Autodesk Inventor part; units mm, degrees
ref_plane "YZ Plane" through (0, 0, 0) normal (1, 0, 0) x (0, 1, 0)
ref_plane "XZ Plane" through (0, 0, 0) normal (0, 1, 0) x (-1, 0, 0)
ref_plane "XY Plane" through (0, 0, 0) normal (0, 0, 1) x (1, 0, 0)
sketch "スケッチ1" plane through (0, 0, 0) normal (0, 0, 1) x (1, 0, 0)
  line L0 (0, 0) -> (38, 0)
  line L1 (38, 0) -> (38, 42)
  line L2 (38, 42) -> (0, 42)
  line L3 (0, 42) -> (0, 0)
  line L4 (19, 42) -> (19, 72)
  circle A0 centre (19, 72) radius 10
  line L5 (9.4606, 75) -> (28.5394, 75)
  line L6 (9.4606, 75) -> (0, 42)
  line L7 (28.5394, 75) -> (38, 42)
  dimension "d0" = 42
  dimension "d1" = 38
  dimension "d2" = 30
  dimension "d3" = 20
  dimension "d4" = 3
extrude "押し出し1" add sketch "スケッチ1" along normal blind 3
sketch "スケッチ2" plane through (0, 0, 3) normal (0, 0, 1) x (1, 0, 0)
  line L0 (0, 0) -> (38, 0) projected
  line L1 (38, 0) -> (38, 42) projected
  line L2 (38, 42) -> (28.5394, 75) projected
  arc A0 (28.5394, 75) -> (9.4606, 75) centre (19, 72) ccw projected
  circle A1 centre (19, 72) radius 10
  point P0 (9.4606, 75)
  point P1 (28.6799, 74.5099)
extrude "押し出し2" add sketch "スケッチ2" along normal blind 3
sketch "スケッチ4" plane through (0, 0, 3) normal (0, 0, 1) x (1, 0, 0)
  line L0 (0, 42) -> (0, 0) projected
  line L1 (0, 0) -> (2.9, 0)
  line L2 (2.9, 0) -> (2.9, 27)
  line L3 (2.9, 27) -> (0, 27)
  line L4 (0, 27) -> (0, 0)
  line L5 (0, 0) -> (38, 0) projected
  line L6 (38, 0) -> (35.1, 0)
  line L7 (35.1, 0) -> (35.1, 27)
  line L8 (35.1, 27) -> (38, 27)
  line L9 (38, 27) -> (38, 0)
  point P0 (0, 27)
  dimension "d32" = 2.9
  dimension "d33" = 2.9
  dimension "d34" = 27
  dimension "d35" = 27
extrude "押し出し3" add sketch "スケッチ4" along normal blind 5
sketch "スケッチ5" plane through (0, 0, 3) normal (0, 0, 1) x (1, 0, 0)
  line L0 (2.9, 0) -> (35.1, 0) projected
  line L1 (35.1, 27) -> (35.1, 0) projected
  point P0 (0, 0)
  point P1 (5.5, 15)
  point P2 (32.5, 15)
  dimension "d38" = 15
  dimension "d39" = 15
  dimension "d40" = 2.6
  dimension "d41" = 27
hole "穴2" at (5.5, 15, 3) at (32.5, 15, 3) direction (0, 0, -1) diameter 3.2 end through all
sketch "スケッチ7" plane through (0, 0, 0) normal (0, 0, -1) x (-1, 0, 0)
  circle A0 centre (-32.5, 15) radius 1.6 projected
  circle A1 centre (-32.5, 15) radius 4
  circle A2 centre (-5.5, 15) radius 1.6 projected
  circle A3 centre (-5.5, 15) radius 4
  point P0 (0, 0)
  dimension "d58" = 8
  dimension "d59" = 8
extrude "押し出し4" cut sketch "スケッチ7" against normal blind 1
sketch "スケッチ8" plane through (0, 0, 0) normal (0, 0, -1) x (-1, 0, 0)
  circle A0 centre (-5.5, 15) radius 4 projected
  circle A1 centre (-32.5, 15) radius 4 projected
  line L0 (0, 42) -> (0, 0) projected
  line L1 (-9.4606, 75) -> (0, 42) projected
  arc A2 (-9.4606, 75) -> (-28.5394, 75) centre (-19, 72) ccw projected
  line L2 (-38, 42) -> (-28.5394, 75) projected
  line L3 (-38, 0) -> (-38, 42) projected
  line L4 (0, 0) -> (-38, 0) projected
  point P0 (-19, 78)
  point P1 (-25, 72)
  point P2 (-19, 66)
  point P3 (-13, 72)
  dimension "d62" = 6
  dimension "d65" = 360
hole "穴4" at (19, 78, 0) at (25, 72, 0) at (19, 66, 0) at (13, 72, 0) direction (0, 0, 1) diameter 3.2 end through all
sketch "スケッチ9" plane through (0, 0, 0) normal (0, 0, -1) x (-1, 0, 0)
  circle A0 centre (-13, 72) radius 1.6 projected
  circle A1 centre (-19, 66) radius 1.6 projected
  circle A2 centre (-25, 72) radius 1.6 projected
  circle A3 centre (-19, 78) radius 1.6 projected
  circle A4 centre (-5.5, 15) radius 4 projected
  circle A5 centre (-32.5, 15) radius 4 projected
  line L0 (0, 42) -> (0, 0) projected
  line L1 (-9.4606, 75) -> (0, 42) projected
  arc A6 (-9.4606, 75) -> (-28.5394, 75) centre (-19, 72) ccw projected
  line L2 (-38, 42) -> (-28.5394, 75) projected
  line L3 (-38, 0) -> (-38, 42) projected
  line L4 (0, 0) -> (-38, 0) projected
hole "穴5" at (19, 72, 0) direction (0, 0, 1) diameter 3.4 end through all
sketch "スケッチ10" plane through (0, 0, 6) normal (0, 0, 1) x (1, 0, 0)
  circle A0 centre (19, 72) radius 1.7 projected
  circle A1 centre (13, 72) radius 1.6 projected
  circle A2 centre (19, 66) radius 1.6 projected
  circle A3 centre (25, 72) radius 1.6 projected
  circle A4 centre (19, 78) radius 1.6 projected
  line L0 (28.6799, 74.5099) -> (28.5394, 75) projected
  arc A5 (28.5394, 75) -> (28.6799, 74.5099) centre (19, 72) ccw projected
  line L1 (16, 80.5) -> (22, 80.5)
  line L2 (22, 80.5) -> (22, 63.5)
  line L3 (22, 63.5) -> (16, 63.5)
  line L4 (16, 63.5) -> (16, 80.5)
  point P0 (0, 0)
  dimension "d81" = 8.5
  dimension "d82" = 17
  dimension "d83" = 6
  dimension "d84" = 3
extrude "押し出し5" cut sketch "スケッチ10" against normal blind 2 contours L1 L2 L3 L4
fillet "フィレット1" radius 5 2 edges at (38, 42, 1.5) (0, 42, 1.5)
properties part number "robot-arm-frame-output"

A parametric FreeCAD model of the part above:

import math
import FreeCAD as App
import Part
import Sketcher
Q = App.Units.Quantity


def edges_at(feature, points):
    """Names of the edges that pass closest to the given points."""
    edges = feature.Shape.Edges
    near = lambda p: min(range(len(edges)), key=lambda i: edges[i].distToShape(Part.Vertex(*p))[0])
    return sorted({f"Edge{near(p) + 1}" for p in points})


def add_polygon(sketch, points):
    """Adds a closed chain of lines whose ends are joined by coincident constraints."""
    first, n = sketch.GeometryCount, len(points)
    for a, b in zip(points, points[1:] + points[:1]):
        sketch.addGeometry(Part.LineSegment(App.Vector(*a, 0), App.Vector(*b, 0)), False)
    for i in range(n):
        sketch.addConstraint(Sketcher.Constraint("Coincident", first + i, 2, first + (i + 1) % n, 1))

doc = App.newDocument("Part")
body = doc.addObject("PartDesign::Body", "Body")

# Sketch on XY plane
sketch1 = body.newObject("Sketcher::SketchObject", "Sketch")
sketch1.AttachmentSupport = (doc.getObject("XY_Plane"), [""])
sketch1.MapMode = "FlatFace"
sketch1.addGeometry([
    Part.LineSegment(App.Vector(0, 42, 0), App.Vector(0, 0, 0)),  # 0
    Part.LineSegment(App.Vector(0, 0, 0), App.Vector(38, 0, 0)),  # 1
    Part.LineSegment(App.Vector(38, 0, 0), App.Vector(38, 42, 0)),  # 2
    Part.LineSegment(App.Vector(38, 42, 0), App.Vector(28.5394, 75, 0)),  # 3
    Part.ArcOfCircle(Part.Circle(App.Vector(19, 72, 0), App.Vector(0, 0, 1), 10), math.radians(17.457589), math.radians(162.542411)),  # 4
    Part.LineSegment(App.Vector(9.4606, 75, 0), App.Vector(0, 42, 0)),  # 5
], False)
sketch1.addConstraint([
    Sketcher.Constraint("Coincident", 0, 2, 1, 1),
    Sketcher.Constraint("Coincident", 1, 2, 2, 1),
    Sketcher.Constraint("Coincident", 2, 2, 3, 1),
    Sketcher.Constraint("Coincident", 3, 2, 4, 1),
    Sketcher.Constraint("Coincident", 4, 2, 5, 1),
    Sketcher.Constraint("Coincident", 5, 2, 0, 1),
    Sketcher.Constraint("Vertical", 0),
    Sketcher.Constraint("Horizontal", 1),
    Sketcher.Constraint("Vertical", 2),
    Sketcher.Constraint("Coincident", 0, 2, -1, 1),
    Sketcher.Constraint("Horizontal", 3, 2, 4, 2),
    Sketcher.Constraint("Horizontal", 2, 2, 5, 2),
    Sketcher.Constraint("Equal", 3, 5),
    Sketcher.Constraint("Radius", 4, Q("10 mm")),
    Sketcher.Constraint("DistanceX", 1, 1, 1, 2, Q("38 mm")),
    Sketcher.Constraint("DistanceY", 0, 2, 0, 1, Q("42 mm")),
    Sketcher.Constraint("DistanceY", 2, 2, 4, 3, Q("30 mm")),
    Sketcher.Constraint("DistanceY", 4, 3, 3, 2, Q("3 mm")),
])
pad1 = body.newObject("PartDesign::Pad", "Pad")
pad1.Profile = sketch1
pad1.Length = 3

# Sketch on XY plane
sketch2 = body.newObject("Sketcher::SketchObject", "Sketch001")
sketch2.AttachmentSupport = (doc.getObject("XY_Plane"), [""])
sketch2.MapMode = "FlatFace"
sketch2.AttachmentOffset = App.Placement(App.Vector(0, 0, 3), App.Rotation())
sketch2.addGeometry(Part.Circle(App.Vector(19, 72, 0), App.Vector(0, 0, 1), 10.000008), False)
sketch2.addConstraint([
    Sketcher.Constraint("Diameter", 0, Q("20 mm")),
    Sketcher.Constraint("DistanceX", -1, 1, 0, 3, Q("19 mm")),
    Sketcher.Constraint("DistanceY", -1, 1, 0, 3, Q("72 mm")),
])
pad2 = body.newObject("PartDesign::Pad", "Pad001")
pad2.Profile = sketch2
pad2.Length = 3

# Sketch on XY plane
sketch3 = body.newObject("Sketcher::SketchObject", "Sketch002")
sketch3.AttachmentSupport = (doc.getObject("XY_Plane"), [""])
sketch3.MapMode = "FlatFace"
sketch3.AttachmentOffset = App.Placement(App.Vector(0, 0, 3), App.Rotation())
add_polygon(sketch3, [(2.9, 27), (0, 27), (0, 0), (2.9, 0)])  # lines 0-3
add_polygon(sketch3, [(35.1, 27), (35.1, 0), (38, 0), (38, 27)])  # lines 4-7
sketch3.addConstraint([
    Sketcher.Constraint("Horizontal", 0),
    Sketcher.Constraint("Vertical", 1),
    Sketcher.Constraint("Horizontal", 2),
    Sketcher.Constraint("Vertical", 3),
    Sketcher.Constraint("Vertical", 4),
    Sketcher.Constraint("Horizontal", 5),
    Sketcher.Constraint("Vertical", 6),
    Sketcher.Constraint("Horizontal", 7),
    Sketcher.Constraint("Coincident", 1, 2, -1, 1),
    Sketcher.Constraint("PointOnObject", 4, 2, -1),
    Sketcher.Constraint("Horizontal", 3, 2, 6, 2),
    Sketcher.Constraint("Equal", 2, 5),
    Sketcher.Constraint("DistanceY", 1, 2, 1, 1, Q("27 mm")),
    Sketcher.Constraint("DistanceX", 0, 2, 0, 1, Q("2.9 mm")),
    Sketcher.Constraint("DistanceX", -1, 1, 5, 2, Q("38 mm")),
])
pad3 = body.newObject("PartDesign::Pad", "Pad002")
pad3.Profile = sketch3
pad3.Length = 5

# Sketch on XY plane
sketch4 = body.newObject("Sketcher::SketchObject", "Sketch003")
sketch4.AttachmentSupport = (doc.getObject("XY_Plane"), [""])
sketch4.MapMode = "FlatFace"
sketch4.AttachmentOffset = App.Placement(App.Vector(0, 0, 3), App.Rotation())
sketch4.addGeometry([
    Part.Circle(App.Vector(5.5, 15, 0), App.Vector(0, 0, 1), 1.6),
    Part.Circle(App.Vector(32.5, 15, 0), App.Vector(0, 0, 1), 1.6),
], False)
sketch4.addConstraint([
    Sketcher.Constraint("Equal", 0, 1),
    Sketcher.Constraint("Horizontal", 0, 3, 1, 3),
    Sketcher.Constraint("Diameter", 0, Q("3.2 mm")),
    Sketcher.Constraint("DistanceY", -1, 1, 0, 3, Q("15 mm")),
    Sketcher.Constraint("DistanceX", 0, 3, 1, 3, Q("27 mm")),
    Sketcher.Constraint("DistanceX", -1, 1, 0, 3, Q("5.5 mm")),
])
doc.recompute()
hole = body.newObject("PartDesign::Hole", "Hole")
hole.Profile = sketch4
hole.ThreadType = "None"
hole.Diameter = 3.2
hole.DepthType = "ThroughAll"

# Sketch on XY plane
sketch5 = body.newObject("Sketcher::SketchObject", "Sketch004")
sketch5.AttachmentSupport = (doc.getObject("XY_Plane"), [""])
sketch5.MapMode = "FlatFace"
sketch5.addGeometry([
    Part.Circle(App.Vector(32.5, 15, 0), App.Vector(0, 0, 1), 4),
    Part.Circle(App.Vector(32.5, 15, 0), App.Vector(0, 0, 1), 1.6),
    Part.Circle(App.Vector(5.5, 15, 0), App.Vector(0, 0, 1), 4),
    Part.Circle(App.Vector(5.5, 15, 0), App.Vector(0, 0, 1), 1.6),
], False)
sketch5.addConstraint([
    Sketcher.Constraint("Coincident", 1, 3, 0, 3),
    Sketcher.Constraint("Coincident", 3, 3, 2, 3),
    Sketcher.Constraint("Equal", 0, 2),
    Sketcher.Constraint("Equal", 1, 3),
    Sketcher.Constraint("Horizontal", 1, 3, 2, 3),
    Sketcher.Constraint("Diameter", 0, Q("8 mm")),
    Sketcher.Constraint("Diameter", 1, Q("3.2 mm")),
    Sketcher.Constraint("DistanceY", -1, 1, 0, 3, Q("15 mm")),
    Sketcher.Constraint("DistanceX", 2, 3, 0, 3, Q("27 mm")),
    Sketcher.Constraint("DistanceX", -1, 1, 0, 3, Q("32.5 mm")),
])
pocket1 = body.newObject("PartDesign::Pocket", "Pocket")
pocket1.Profile = sketch5
pocket1.Length = 1
pocket1.Reversed = True

# Sketch on XY plane
sketch6 = body.newObject("Sketcher::SketchObject", "Sketch005")
sketch6.AttachmentSupport = (doc.getObject("XY_Plane"), [""])
sketch6.MapMode = "FlatFace"
sketch6.addGeometry([
    Part.Circle(App.Vector(19, 78, 0), App.Vector(0, 0, 1), 1.6),
    Part.Circle(App.Vector(25, 72, 0), App.Vector(0, 0, 1), 1.6),
    Part.Circle(App.Vector(19, 66, 0), App.Vector(0, 0, 1), 1.6),
    Part.Circle(App.Vector(13, 72, 0), App.Vector(0, 0, 1), 1.6),
], False)
sketch6.addConstraint([
    Sketcher.Constraint("Equal", 0, 1),
    Sketcher.Constraint("Equal", 1, 2),
    Sketcher.Constraint("Equal", 2, 3),
    Sketcher.Constraint("Horizontal", 1, 3, 3, 3),
    Sketcher.Constraint("Vertical", 0, 3, 2, 3),
    Sketcher.Constraint("Diameter", 0, Q("3.2 mm")),
    Sketcher.Constraint("DistanceX", -1, 1, 0, 3, Q("19 mm")),
    Sketcher.Constraint("DistanceY", -1, 1, 0, 3, Q("78 mm")),
    Sketcher.Constraint("DistanceX", -1, 1, 1, 3, Q("25 mm")),
    Sketcher.Constraint("DistanceY", -1, 1, 1, 3, Q("72 mm")),
    Sketcher.Constraint("DistanceY", -1, 1, 2, 3, Q("66 mm")),
    Sketcher.Constraint("DistanceX", -1, 1, 3, 3, Q("13 mm")),
])
doc.recompute()
hole2 = body.newObject("PartDesign::Hole", "Hole001")
hole2.Profile = sketch6
hole2.ThreadType = "None"
hole2.Diameter = 3.2
hole2.DepthType = "ThroughAll"
hole2.Reversed = True

# Sketch on XY plane
sketch7 = body.newObject("Sketcher::SketchObject", "Sketch006")
sketch7.AttachmentSupport = (doc.getObject("XY_Plane"), [""])
sketch7.MapMode = "FlatFace"
sketch7.addGeometry(Part.Circle(App.Vector(19, 72, 0), App.Vector(0, 0, 1), 1.7), False)
sketch7.addConstraint([
    Sketcher.Constraint("Diameter", 0, Q("3.4 mm")),
    Sketcher.Constraint("DistanceX", -1, 1, 0, 3, Q("19 mm")),
    Sketcher.Constraint("DistanceY", -1, 1, 0, 3, Q("72 mm")),
])
doc.recompute()
hole3 = body.newObject("PartDesign::Hole", "Hole002")
hole3.Profile = sketch7
hole3.ThreadType = "None"
hole3.Diameter = 3.4
hole3.DepthType = "ThroughAll"
hole3.Reversed = True

# Sketch on XY plane
sketch8 = body.newObject("Sketcher::SketchObject", "Sketch007")
sketch8.AttachmentSupport = (doc.getObject("XY_Plane"), [""])
sketch8.MapMode = "FlatFace"
sketch8.AttachmentOffset = App.Placement(App.Vector(0, 0, 6), App.Rotation())
add_polygon(sketch8, [(22, 80.5), (16, 80.5), (16, 63.5), (22, 63.5)])  # lines 0-3
sketch8.addGeometry(Part.Circle(App.Vector(19, 66, 0), App.Vector(0, 0, 1), 1.6), False)  # 4
sketch8.addGeometry(Part.Circle(App.Vector(19, 72, 0), App.Vector(0, 0, 1), 1.7), False)  # 5
sketch8.addGeometry(Part.Circle(App.Vector(19, 78, 0), App.Vector(0, 0, 1), 1.6), False)  # 6
sketch8.addConstraint([
    Sketcher.Constraint("Horizontal", 0),
    Sketcher.Constraint("Vertical", 1),
    Sketcher.Constraint("Horizontal", 2),
    Sketcher.Constraint("Vertical", 3),
    Sketcher.Constraint("Equal", 4, 6),
    Sketcher.Constraint("Vertical", 4, 3, 5, 3),
    Sketcher.Constraint("Vertical", 5, 3, 6, 3),
    Sketcher.Constraint("DistanceX", 0, 2, 0, 1, Q("6 mm")),
    Sketcher.Constraint("DistanceY", 1, 2, 1, 1, Q("17 mm")),
    Sketcher.Constraint("DistanceY", 4, 3, 5, 3, Q("6 mm")),
    Sketcher.Constraint("DistanceY", 5, 3, 6, 3, Q("6 mm")),
    Sketcher.Constraint("DistanceX", 0, 2, 6, 3, Q("3 mm")),
    Sketcher.Constraint("Diameter", 4, Q("3.2 mm")),
    Sketcher.Constraint("Diameter", 5, Q("3.4 mm")),
    Sketcher.Constraint("DistanceY", 5, 3, 0, 2, Q("8.5 mm")),
    Sketcher.Constraint("DistanceX", -1, 1, 4, 3, Q("19 mm")),
    Sketcher.Constraint("DistanceY", -1, 1, 4, 3, Q("66 mm")),
])
pocket2 = body.newObject("PartDesign::Pocket", "Pocket001")
pocket2.Profile = sketch8
pocket2.Length = 2
doc.recompute()

fillet = body.newObject("PartDesign::Fillet", "Fillet")
fillet.Base = (pocket2, edges_at(pocket2, [(38, 42, 1.5), (0, 42, 1.5)]))
fillet.Radius = 5

doc.recompute()
